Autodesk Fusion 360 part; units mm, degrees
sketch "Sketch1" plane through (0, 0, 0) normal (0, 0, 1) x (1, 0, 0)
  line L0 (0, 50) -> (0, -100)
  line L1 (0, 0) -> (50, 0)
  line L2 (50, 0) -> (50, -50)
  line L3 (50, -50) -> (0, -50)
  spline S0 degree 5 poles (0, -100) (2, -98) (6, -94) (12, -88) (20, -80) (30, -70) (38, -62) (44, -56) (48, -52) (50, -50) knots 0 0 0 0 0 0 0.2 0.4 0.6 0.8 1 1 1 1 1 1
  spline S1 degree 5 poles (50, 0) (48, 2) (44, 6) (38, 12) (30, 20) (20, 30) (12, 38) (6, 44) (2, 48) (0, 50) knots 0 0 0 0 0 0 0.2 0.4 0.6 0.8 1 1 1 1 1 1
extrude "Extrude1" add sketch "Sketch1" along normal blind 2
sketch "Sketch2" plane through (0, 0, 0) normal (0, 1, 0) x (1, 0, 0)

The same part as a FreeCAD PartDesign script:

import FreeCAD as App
import Part
import Sketcher

doc = App.newDocument("Part")
body = doc.addObject("PartDesign::Body", "Body")

# Sketch on XY plane
sketch1 = body.newObject("Sketcher::SketchObject", "Sketch")
sketch1.AttachmentSupport = (doc.getObject("XY_Plane"), [""])
sketch1.MapMode = "FlatFace"
sketch1.addGeometry([
    Part.BSplineCurve([App.Vector(50, 0, 0), App.Vector(48, 2, 0), App.Vector(44, 6, 0), App.Vector(38, 12, 0), App.Vector(30, 20, 0), App.Vector(20, 30, 0), App.Vector(12, 38, 0), App.Vector(6, 44, 0), App.Vector(2, 48, 0), App.Vector(0, 50, 0)], [6, 1, 1, 1, 1, 6], [0, 0.2, 0.4, 0.6, 0.8, 1], False, 5, [1, 1, 1, 1, 1, 1, 1, 1, 1, 1], False),
    Part.LineSegment(App.Vector(0, 50, 0), App.Vector(0, -100, 0)),
    Part.BSplineCurve([App.Vector(0, -100, 0), App.Vector(2, -98, 0), App.Vector(6, -94, 0), App.Vector(12, -88, 0), App.Vector(20, -80, 0), App.Vector(30, -70, 0), App.Vector(38, -62, 0), App.Vector(44, -56, 0), App.Vector(48, -52, 0), App.Vector(50, -50, 0)], [6, 1, 1, 1, 1, 6], [0, 0.2, 0.4, 0.6, 0.8, 1], False, 5, [1, 1, 1, 1, 1, 1, 1, 1, 1, 1], False),
    Part.LineSegment(App.Vector(50, -50, 0), App.Vector(50, 0, 0)),
], False)
sketch1.addConstraint([
    Sketcher.Constraint("Block", 0),
    Sketcher.Constraint("Block", 2),
    Sketcher.Constraint("Coincident", 0, 2, 1, 1),
    Sketcher.Constraint("Coincident", 1, 2, 2, 1),
    Sketcher.Constraint("Coincident", 2, 2, 3, 1),
    Sketcher.Constraint("Coincident", 3, 2, 0, 1),
])
pad1 = body.newObject("PartDesign::Pad", "Pad")
pad1.Profile = sketch1
pad1.Length = 2

doc.recompute()
